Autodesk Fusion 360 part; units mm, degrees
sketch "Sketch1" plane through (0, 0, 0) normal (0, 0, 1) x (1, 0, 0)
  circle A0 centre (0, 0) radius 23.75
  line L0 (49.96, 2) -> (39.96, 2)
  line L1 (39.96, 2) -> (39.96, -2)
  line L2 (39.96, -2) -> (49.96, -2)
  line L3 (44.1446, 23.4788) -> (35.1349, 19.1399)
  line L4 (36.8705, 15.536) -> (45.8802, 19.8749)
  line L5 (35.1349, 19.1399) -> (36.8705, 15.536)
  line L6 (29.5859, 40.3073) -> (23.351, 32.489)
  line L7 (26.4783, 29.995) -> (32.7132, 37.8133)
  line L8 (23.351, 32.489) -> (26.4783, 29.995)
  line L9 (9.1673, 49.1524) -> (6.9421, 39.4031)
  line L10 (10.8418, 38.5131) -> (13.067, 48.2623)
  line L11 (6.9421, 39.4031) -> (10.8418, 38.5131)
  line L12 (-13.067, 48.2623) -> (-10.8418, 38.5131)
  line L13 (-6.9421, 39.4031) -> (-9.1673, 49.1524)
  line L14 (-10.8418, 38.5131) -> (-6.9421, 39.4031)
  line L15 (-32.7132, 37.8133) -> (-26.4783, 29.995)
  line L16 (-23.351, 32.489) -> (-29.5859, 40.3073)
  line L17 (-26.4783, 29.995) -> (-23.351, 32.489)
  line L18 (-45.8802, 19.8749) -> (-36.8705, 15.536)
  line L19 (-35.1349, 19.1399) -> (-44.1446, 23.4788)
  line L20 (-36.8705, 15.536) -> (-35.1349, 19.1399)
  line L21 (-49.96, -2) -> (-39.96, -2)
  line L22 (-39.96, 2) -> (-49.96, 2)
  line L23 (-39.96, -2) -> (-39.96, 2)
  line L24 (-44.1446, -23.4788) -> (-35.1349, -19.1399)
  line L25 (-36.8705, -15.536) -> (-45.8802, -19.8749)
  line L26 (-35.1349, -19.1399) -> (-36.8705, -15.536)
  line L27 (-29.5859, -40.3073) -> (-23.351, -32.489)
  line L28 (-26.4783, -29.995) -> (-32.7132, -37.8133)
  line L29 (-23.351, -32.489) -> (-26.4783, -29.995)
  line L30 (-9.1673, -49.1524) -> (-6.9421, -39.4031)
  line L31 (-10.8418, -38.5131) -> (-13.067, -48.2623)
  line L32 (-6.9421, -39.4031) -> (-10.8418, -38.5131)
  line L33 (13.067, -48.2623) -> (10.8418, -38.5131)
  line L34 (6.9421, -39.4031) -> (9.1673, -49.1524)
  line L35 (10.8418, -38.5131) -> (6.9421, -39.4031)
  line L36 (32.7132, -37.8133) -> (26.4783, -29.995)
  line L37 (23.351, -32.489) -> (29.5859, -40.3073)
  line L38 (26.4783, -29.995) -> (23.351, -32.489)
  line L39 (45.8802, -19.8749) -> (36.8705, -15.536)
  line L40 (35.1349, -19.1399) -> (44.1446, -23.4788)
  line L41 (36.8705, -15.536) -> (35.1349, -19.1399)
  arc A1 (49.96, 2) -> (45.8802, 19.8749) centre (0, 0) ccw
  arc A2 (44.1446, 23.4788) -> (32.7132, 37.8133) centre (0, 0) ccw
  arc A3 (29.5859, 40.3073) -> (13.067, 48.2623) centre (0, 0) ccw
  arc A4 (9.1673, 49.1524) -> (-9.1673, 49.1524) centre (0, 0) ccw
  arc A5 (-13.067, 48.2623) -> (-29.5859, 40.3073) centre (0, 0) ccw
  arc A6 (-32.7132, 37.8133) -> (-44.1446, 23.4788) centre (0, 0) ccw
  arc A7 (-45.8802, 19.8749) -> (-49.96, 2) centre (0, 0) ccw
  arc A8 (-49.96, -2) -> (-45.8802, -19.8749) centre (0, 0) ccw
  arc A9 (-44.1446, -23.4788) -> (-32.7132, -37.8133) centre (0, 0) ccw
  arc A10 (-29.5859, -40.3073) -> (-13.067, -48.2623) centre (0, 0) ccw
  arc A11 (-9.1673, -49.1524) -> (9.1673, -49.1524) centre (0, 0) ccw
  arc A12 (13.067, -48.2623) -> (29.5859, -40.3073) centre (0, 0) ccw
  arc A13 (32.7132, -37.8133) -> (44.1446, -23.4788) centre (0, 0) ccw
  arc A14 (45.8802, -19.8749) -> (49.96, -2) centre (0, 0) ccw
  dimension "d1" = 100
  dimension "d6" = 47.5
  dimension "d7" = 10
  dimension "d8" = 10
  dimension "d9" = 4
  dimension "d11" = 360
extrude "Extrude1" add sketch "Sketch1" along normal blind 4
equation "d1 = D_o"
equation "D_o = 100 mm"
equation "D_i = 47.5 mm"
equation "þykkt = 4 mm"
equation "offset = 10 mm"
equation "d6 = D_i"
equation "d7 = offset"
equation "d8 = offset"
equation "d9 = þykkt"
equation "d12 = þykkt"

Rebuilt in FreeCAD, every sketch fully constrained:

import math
import FreeCAD as App
import Part
import Sketcher

V = App.Vector
Q = App.Units.Quantity

doc = App.newDocument("Part")
body = doc.addObject("PartDesign::Body", "Body")

# Sketch on XY plane
sketch1 = body.newObject("Sketcher::SketchObject", "Sketch")
sketch1.AttachmentSupport = (doc.getObject("XY_Plane"), [""])
sketch1.MapMode = "FlatFace"
sketch1.addGeometry([
    Part.LineSegment(V(39.96, 2, 0), V(49.96, 2, 0)),  # 0
    Part.ArcOfCircle(Part.Circle(V(0, 0, 0), V(0, 0, 1), 50.000044), math.radians(2.292442), math.radians(23.421837)),  # 1
    Part.LineSegment(V(45.8802, 19.8749, 0), V(36.8705, 15.536, 0)),  # 2
    Part.LineSegment(V(36.8705, 15.536, 0), V(35.1349, 19.1399, 0)),  # 3
    Part.LineSegment(V(35.1349, 19.1399, 0), V(44.1446, 23.4788, 0)),  # 4
    Part.ArcOfCircle(Part.Circle(V(0, 0, 0), V(0, 0, 1), 49.999961), math.radians(28.006779), math.radians(49.136125)),  # 5
    Part.LineSegment(V(32.7132, 37.8133, 0), V(26.4783, 29.995, 0)),  # 6
    Part.LineSegment(V(26.4783, 29.995, 0), V(23.351, 32.489, 0)),  # 7
    Part.LineSegment(V(23.351, 32.489, 0), V(29.5859, 40.3073, 0)),  # 8
    Part.ArcOfCircle(Part.Circle(V(0.001193, 0.001986, 0), V(0, 0, 1), 49.997732), math.radians(53.720771), math.radians(74.851125)),  # 9
    Part.LineSegment(V(13.067, 48.2623, 0), V(10.8418, 38.5131, 0)),  # 10
    Part.LineSegment(V(10.8418, 38.5131, 0), V(6.9421, 39.4031, 0)),  # 11
    Part.LineSegment(V(6.9421, 39.4031, 0), V(9.1673, 49.1524, 0)),  # 12
    Part.ArcOfCircle(Part.Circle(V(0, 0, 0), V(0, 0, 1), 49.999978), math.radians(79.435279), math.radians(100.564721)),  # 13
    Part.LineSegment(V(-9.1673, 49.1524, 0), V(-6.9421, 39.4031, 0)),  # 14
    Part.LineSegment(V(-6.9421, 39.4031, 0), V(-10.8418, 38.5131, 0)),  # 15
    Part.LineSegment(V(-10.8418, 38.5131, 0), V(-13.067, 48.2623, 0)),  # 16
    Part.ArcOfCircle(Part.Circle(V(0.000809, -0.002171, 0), V(0, 0, 1), 50.002268), math.radians(105.149844), math.radians(126.27826)),  # 17
    Part.LineSegment(V(-29.5859, 40.3073, 0), V(-23.351, 32.489, 0)),  # 18
    Part.LineSegment(V(-23.351, 32.489, 0), V(-26.4783, 29.995, 0)),  # 19
    Part.LineSegment(V(-26.4783, 29.995, 0), V(-32.7132, 37.8133, 0)),  # 20
    Part.ArcOfCircle(Part.Circle(V(0, 0, 0), V(0, 0, 1), 50.000044), math.radians(130.863875), math.radians(151.993221)),  # 21
    Part.LineSegment(V(-44.1446, 23.4788, 0), V(-35.1349, 19.1399, 0)),  # 22
    Part.LineSegment(V(-35.1349, 19.1399, 0), V(-36.8705, 15.536, 0)),  # 23
    Part.LineSegment(V(-36.8705, 15.536, 0), V(-45.8802, 19.8749, 0)),  # 24
    Part.ArcOfCircle(Part.Circle(V(0, 0, 0), V(0, 0, 1), 49.999961), math.radians(156.578163), math.radians(177.707558)),  # 25
    Part.LineSegment(V(-49.96, 2, 0), V(-39.96, 2, 0)),  # 26
    Part.LineSegment(V(-39.96, 2, 0), V(-39.96, -2, 0)),  # 27
    Part.LineSegment(V(-39.96, -2, 0), V(-49.96, -2, 0)),  # 28
    Part.ArcOfCircle(Part.Circle(V(0, 0, 0), V(0, 0, 1), 50.000044), math.radians(-177.707558), math.radians(-156.578163)),  # 29
    Part.LineSegment(V(-45.8802, -19.8749, 0), V(-36.8705, -15.536, 0)),  # 30
    Part.LineSegment(V(-36.8705, -15.536, 0), V(-35.1349, -19.1399, 0)),  # 31
    Part.LineSegment(V(-35.1349, -19.1399, 0), V(-44.1446, -23.4788, 0)),  # 32
    Part.ArcOfCircle(Part.Circle(V(0, 0, 0), V(0, 0, 1), 49.999961), math.radians(-151.993221), math.radians(-130.863875)),  # 33
    Part.LineSegment(V(-32.7132, -37.8133, 0), V(-26.4783, -29.995, 0)),  # 34
    Part.LineSegment(V(-26.4783, -29.995, 0), V(-23.351, -32.489, 0)),  # 35
    Part.LineSegment(V(-23.351, -32.489, 0), V(-29.5859, -40.3073, 0)),  # 36
    Part.ArcOfCircle(Part.Circle(V(-0.001193, -0.001986, 0), V(0, 0, 1), 49.997732), math.radians(-126.279229), math.radians(-105.148875)),  # 37
    Part.LineSegment(V(-13.067, -48.2623, 0), V(-10.8418, -38.5131, 0)),  # 38
    Part.LineSegment(V(-10.8418, -38.5131, 0), V(-6.9421, -39.4031, 0)),  # 39
    Part.LineSegment(V(-6.9421, -39.4031, 0), V(-9.1673, -49.1524, 0)),  # 40
    Part.ArcOfCircle(Part.Circle(V(0, 0, 0), V(0, 0, 1), 49.999978), math.radians(-100.564721), math.radians(-79.435279)),  # 41
    Part.LineSegment(V(9.1673, -49.1524, 0), V(6.9421, -39.4031, 0)),  # 42
    Part.LineSegment(V(6.9421, -39.4031, 0), V(10.8418, -38.5131, 0)),  # 43
    Part.LineSegment(V(10.8418, -38.5131, 0), V(13.067, -48.2623, 0)),  # 44
    Part.ArcOfCircle(Part.Circle(V(-0.000809, 0.002171, 0), V(0, 0, 1), 50.002268), math.radians(-74.850156), math.radians(-53.72174)),  # 45
    Part.LineSegment(V(29.5859, -40.3073, 0), V(23.351, -32.489, 0)),  # 46
    Part.LineSegment(V(23.351, -32.489, 0), V(26.4783, -29.995, 0)),  # 47
    Part.LineSegment(V(26.4783, -29.995, 0), V(32.7132, -37.8133, 0)),  # 48
    Part.ArcOfCircle(Part.Circle(V(0, 0, 0), V(0, 0, 1), 50.000044), math.radians(-49.136125), math.radians(-28.006779)),  # 49
    Part.LineSegment(V(44.1446, -23.4788, 0), V(35.1349, -19.1399, 0)),  # 50
    Part.LineSegment(V(35.1349, -19.1399, 0), V(36.8705, -15.536, 0)),  # 51
    Part.LineSegment(V(36.8705, -15.536, 0), V(45.8802, -19.8749, 0)),  # 52
    Part.ArcOfCircle(Part.Circle(V(0, 0, 0), V(0, 0, 1), 49.999961), math.radians(-23.421837), math.radians(-2.292442)),  # 53
    Part.LineSegment(V(49.96, -2, 0), V(39.96, -2, 0)),  # 54
    Part.LineSegment(V(39.96, -2, 0), V(39.96, 2, 0)),  # 55
    Part.Circle(V(0, 0, 0), V(0, 0, 1), 23.75),  # 56
], False)
sketch1.addConstraint([
    Sketcher.Constraint("Coincident", 0, 2, 1, 1),
    Sketcher.Constraint("Coincident", 1, 2, 2, 1),
    Sketcher.Constraint("Coincident", 2, 2, 3, 1),
    Sketcher.Constraint("Coincident", 3, 2, 4, 1),
    Sketcher.Constraint("Coincident", 4, 2, 5, 1),
    Sketcher.Constraint("Coincident", 5, 2, 6, 1),
    Sketcher.Constraint("Coincident", 6, 2, 7, 1),
    Sketcher.Constraint("Coincident", 7, 2, 8, 1),
    Sketcher.Constraint("Coincident", 8, 2, 9, 1),
    Sketcher.Constraint("Coincident", 9, 2, 10, 1),
    Sketcher.Constraint("Coincident", 10, 2, 11, 1),
    Sketcher.Constraint("Coincident", 11, 2, 12, 1),
    Sketcher.Constraint("Coincident", 12, 2, 13, 1),
    Sketcher.Constraint("Coincident", 13, 2, 14, 1),
    Sketcher.Constraint("Coincident", 14, 2, 15, 1),
    Sketcher.Constraint("Coincident", 15, 2, 16, 1),
    Sketcher.Constraint("Coincident", 16, 2, 17, 1),
    Sketcher.Constraint("Coincident", 17, 2, 18, 1),
    Sketcher.Constraint("Coincident", 18, 2, 19, 1),
    Sketcher.Constraint("Coincident", 19, 2, 20, 1),
    Sketcher.Constraint("Coincident", 20, 2, 21, 1),
    Sketcher.Constraint("Coincident", 21, 2, 22, 1),
    Sketcher.Constraint("Coincident", 22, 2, 23, 1),
    Sketcher.Constraint("Coincident", 23, 2, 24, 1),
    Sketcher.Constraint("Coincident", 24, 2, 25, 1),
    Sketcher.Constraint("Coincident", 25, 2, 26, 1),
    Sketcher.Constraint("Coincident", 26, 2, 27, 1),
    Sketcher.Constraint("Coincident", 27, 2, 28, 1),
    Sketcher.Constraint("Coincident", 28, 2, 29, 1),
    Sketcher.Constraint("Coincident", 29, 2, 30, 1),
    Sketcher.Constraint("Coincident", 30, 2, 31, 1),
    Sketcher.Constraint("Coincident", 31, 2, 32, 1),
    Sketcher.Constraint("Coincident", 32, 2, 33, 1),
    Sketcher.Constraint("Coincident", 33, 2, 34, 1),
    Sketcher.Constraint("Coincident", 34, 2, 35, 1),
    Sketcher.Constraint("Coincident", 35, 2, 36, 1),
    Sketcher.Constraint("Coincident", 36, 2, 37, 1),
    Sketcher.Constraint("Coincident", 37, 2, 38, 1),
    Sketcher.Constraint("Coincident", 38, 2, 39, 1),
    Sketcher.Constraint("Coincident", 39, 2, 40, 1),
    Sketcher.Constraint("Coincident", 40, 2, 41, 1),
    Sketcher.Constraint("Coincident", 41, 2, 42, 1),
    Sketcher.Constraint("Coincident", 42, 2, 43, 1),
    Sketcher.Constraint("Coincident", 43, 2, 44, 1),
    Sketcher.Constraint("Coincident", 44, 2, 45, 1),
    Sketcher.Constraint("Coincident", 45, 2, 46, 1),
    Sketcher.Constraint("Coincident", 46, 2, 47, 1),
    Sketcher.Constraint("Coincident", 47, 2, 48, 1),
    Sketcher.Constraint("Coincident", 48, 2, 49, 1),
    Sketcher.Constraint("Coincident", 49, 2, 50, 1),
    Sketcher.Constraint("Coincident", 50, 2, 51, 1),
    Sketcher.Constraint("Coincident", 51, 2, 52, 1),
    Sketcher.Constraint("Coincident", 52, 2, 53, 1),
    Sketcher.Constraint("Coincident", 53, 2, 54, 1),
    Sketcher.Constraint("Coincident", 54, 2, 55, 1),
    Sketcher.Constraint("Coincident", 55, 2, 0, 1),
    Sketcher.Constraint("Horizontal", 0),
    Sketcher.Constraint("Horizontal", 26),
    Sketcher.Constraint("Vertical", 27),
    Sketcher.Constraint("Horizontal", 28),
    Sketcher.Constraint("Horizontal", 54),
    Sketcher.Constraint("Vertical", 55),
    Sketcher.Constraint("Coincident", 1, 3, -1, 1),
    Sketcher.Constraint("Coincident", 5, 3, -1, 1),
    Sketcher.Constraint("Coincident", 13, 3, -1, 1),
    Sketcher.Constraint("Coincident", 21, 3, -1, 1),
    Sketcher.Constraint("Coincident", 25, 3, -1, 1),
    Sketcher.Constraint("Coincident", 29, 3, -1, 1),
    Sketcher.Constraint("Coincident", 33, 3, -1, 1),
    Sketcher.Constraint("Coincident", 41, 3, -1, 1),
    Sketcher.Constraint("Coincident", 49, 3, -1, 1),
    Sketcher.Constraint("Coincident", 53, 3, -1, 1),
    Sketcher.Constraint("Coincident", 56, 3, -1, 1),
    Sketcher.Constraint("Equal", 1, 5),
    Sketcher.Constraint("Equal", 5, 13),
    Sketcher.Constraint("Equal", 13, 21),
    Sketcher.Constraint("Equal", 21, 25),
    Sketcher.Constraint("Equal", 25, 29),
    Sketcher.Constraint("Equal", 29, 33),
    Sketcher.Constraint("Equal", 9, 37),
    Sketcher.Constraint("Equal", 33, 41),
    Sketcher.Constraint("Equal", 17, 45),
    Sketcher.Constraint("Equal", 41, 49),
    Sketcher.Constraint("Equal", 49, 53),
    Sketcher.Constraint("Symmetric", 9, 3, 37, 3, -1, 1),
    Sketcher.Constraint("Symmetric", 17, 3, 45, 3, -1, 1),
    Sketcher.Constraint("Symmetric", 2, 2, 30, 2, -1, 1),
    Sketcher.Constraint("Symmetric", 3, 2, 31, 2, -1, 1),
    Sketcher.Constraint("Symmetric", 6, 2, 34, 2, -1, 1),
    Sketcher.Constraint("Symmetric", 7, 2, 35, 2, -1, 1),
    Sketcher.Constraint("Symmetric", 10, 2, 38, 2, -1, 1),
    Sketcher.Constraint("Symmetric", 11, 2, 39, 2, -1, 1),
    Sketcher.Constraint("Symmetric", 14, 2, 42, 2, -1, 1),
    Sketcher.Constraint("Symmetric", 15, 2, 43, 2, -1, 1),
    Sketcher.Constraint("Symmetric", 18, 2, 46, 2, -1, 1),
    Sketcher.Constraint("Symmetric", 19, 2, 47, 2, -1, 1),
    Sketcher.Constraint("Symmetric", 22, 2, 50, 2, -1, 1),
    Sketcher.Constraint("Symmetric", 23, 2, 51, 2, -1, 1),
    Sketcher.Constraint("Symmetric", 26, 2, 54, 2, -1, 1),
    Sketcher.Constraint("Symmetric", 11, 2, 14, 2, -2),
    Sketcher.Constraint("Symmetric", 10, 2, 15, 2, -2),
    Sketcher.Constraint("Symmetric", 9, 2, 16, 2, -2),
    Sketcher.Constraint("Symmetric", 8, 2, 17, 2, -2),
    Sketcher.Constraint("Symmetric", 7, 2, 18, 2, -2),
    Sketcher.Constraint("Symmetric", 6, 2, 19, 2, -2),
    Sketcher.Constraint("Symmetric", 3, 2, 22, 2, -2),
    Sketcher.Constraint("Symmetric", 2, 2, 23, 2, -2),
    Sketcher.Constraint("Perpendicular", 2, 3),
    Sketcher.Constraint("Perpendicular", 3, 4),
    Sketcher.Constraint("Perpendicular", 6, 7),
    Sketcher.Constraint("Perpendicular", 7, 8),
    Sketcher.Constraint("Perpendicular", 10, 11),
    Sketcher.Constraint("Perpendicular", 11, 12),
    Sketcher.Constraint("Perpendicular", 14, 15),
    Sketcher.Constraint("Perpendicular", 19, 20),
    Sketcher.Constraint("Perpendicular", 22, 23),
    Sketcher.Constraint("Perpendicular", 23, 24),
    Sketcher.Constraint("Parallel", 4, 30),
    Sketcher.Constraint("Perpendicular", 31, 32),
    Sketcher.Constraint("Parallel", 8, 34),
    Sketcher.Constraint("Perpendicular", 35, 36),
    Sketcher.Constraint("Parallel", 12, 38),
    Sketcher.Constraint("Perpendicular", 39, 40),
    Sketcher.Constraint("Parallel", 16, 42),
    Sketcher.Constraint("Perpendicular", 43, 44),
    Sketcher.Constraint("Parallel", 20, 46),
    Sketcher.Constraint("Perpendicular", 47, 48),
    Sketcher.Constraint("Parallel", 24, 50),
    Sketcher.Constraint("Perpendicular", 51, 52),
    Sketcher.Constraint("Horizontal", 17, 3, 37, 3),
    Sketcher.Constraint("Horizontal", 0, 2, 25, 2),
    Sketcher.Constraint("Horizontal", 28, 2, 53, 2),
    Sketcher.Constraint("Equal", 2, 4),
    Sketcher.Constraint("Equal", 4, 6),
    Sketcher.Constraint("Equal", 3, 7),
    Sketcher.Constraint("Equal", 6, 8),
    Sketcher.Constraint("Equal", 8, 10),
    Sketcher.Constraint("Equal", 7, 11),
    Sketcher.Constraint("Equal", 10, 12),
    Sketcher.Constraint("Radius", 1, Q("50 mm")),
    Sketcher.Constraint("Diameter", 56, Q("47.5 mm")),
    Sketcher.Constraint("DistanceX", 0, 1, 0, 2, Q("10 mm")),
    Sketcher.Constraint("DistanceY", 27, 2, 27, 1, Q("4 mm")),
    Sketcher.Constraint("Distance", 2, Q("10 mm")),
    Sketcher.Constraint("Distance", 3, Q("4 mm")),
    Sketcher.Constraint("Radius", 9, Q("49.9977 mm")),
    Sketcher.Constraint("Radius", 17, Q("50.0023 mm")),
    Sketcher.Constraint("DistanceY", -1, 1, 3, 2, Q("19.14 mm")),
    Sketcher.Constraint("DistanceY", -1, 1, 6, 2, Q("29.995 mm")),
    Sketcher.Constraint("DistanceX", -1, 1, 7, 2, Q("23.351 mm")),
    Sketcher.Constraint("DistanceX", -1, 1, 9, 2, Q("13.067 mm")),
])
pad1 = body.newObject("PartDesign::Pad", "Pad")
pad1.Profile = sketch1
pad1.Length = 4

doc.recompute()
